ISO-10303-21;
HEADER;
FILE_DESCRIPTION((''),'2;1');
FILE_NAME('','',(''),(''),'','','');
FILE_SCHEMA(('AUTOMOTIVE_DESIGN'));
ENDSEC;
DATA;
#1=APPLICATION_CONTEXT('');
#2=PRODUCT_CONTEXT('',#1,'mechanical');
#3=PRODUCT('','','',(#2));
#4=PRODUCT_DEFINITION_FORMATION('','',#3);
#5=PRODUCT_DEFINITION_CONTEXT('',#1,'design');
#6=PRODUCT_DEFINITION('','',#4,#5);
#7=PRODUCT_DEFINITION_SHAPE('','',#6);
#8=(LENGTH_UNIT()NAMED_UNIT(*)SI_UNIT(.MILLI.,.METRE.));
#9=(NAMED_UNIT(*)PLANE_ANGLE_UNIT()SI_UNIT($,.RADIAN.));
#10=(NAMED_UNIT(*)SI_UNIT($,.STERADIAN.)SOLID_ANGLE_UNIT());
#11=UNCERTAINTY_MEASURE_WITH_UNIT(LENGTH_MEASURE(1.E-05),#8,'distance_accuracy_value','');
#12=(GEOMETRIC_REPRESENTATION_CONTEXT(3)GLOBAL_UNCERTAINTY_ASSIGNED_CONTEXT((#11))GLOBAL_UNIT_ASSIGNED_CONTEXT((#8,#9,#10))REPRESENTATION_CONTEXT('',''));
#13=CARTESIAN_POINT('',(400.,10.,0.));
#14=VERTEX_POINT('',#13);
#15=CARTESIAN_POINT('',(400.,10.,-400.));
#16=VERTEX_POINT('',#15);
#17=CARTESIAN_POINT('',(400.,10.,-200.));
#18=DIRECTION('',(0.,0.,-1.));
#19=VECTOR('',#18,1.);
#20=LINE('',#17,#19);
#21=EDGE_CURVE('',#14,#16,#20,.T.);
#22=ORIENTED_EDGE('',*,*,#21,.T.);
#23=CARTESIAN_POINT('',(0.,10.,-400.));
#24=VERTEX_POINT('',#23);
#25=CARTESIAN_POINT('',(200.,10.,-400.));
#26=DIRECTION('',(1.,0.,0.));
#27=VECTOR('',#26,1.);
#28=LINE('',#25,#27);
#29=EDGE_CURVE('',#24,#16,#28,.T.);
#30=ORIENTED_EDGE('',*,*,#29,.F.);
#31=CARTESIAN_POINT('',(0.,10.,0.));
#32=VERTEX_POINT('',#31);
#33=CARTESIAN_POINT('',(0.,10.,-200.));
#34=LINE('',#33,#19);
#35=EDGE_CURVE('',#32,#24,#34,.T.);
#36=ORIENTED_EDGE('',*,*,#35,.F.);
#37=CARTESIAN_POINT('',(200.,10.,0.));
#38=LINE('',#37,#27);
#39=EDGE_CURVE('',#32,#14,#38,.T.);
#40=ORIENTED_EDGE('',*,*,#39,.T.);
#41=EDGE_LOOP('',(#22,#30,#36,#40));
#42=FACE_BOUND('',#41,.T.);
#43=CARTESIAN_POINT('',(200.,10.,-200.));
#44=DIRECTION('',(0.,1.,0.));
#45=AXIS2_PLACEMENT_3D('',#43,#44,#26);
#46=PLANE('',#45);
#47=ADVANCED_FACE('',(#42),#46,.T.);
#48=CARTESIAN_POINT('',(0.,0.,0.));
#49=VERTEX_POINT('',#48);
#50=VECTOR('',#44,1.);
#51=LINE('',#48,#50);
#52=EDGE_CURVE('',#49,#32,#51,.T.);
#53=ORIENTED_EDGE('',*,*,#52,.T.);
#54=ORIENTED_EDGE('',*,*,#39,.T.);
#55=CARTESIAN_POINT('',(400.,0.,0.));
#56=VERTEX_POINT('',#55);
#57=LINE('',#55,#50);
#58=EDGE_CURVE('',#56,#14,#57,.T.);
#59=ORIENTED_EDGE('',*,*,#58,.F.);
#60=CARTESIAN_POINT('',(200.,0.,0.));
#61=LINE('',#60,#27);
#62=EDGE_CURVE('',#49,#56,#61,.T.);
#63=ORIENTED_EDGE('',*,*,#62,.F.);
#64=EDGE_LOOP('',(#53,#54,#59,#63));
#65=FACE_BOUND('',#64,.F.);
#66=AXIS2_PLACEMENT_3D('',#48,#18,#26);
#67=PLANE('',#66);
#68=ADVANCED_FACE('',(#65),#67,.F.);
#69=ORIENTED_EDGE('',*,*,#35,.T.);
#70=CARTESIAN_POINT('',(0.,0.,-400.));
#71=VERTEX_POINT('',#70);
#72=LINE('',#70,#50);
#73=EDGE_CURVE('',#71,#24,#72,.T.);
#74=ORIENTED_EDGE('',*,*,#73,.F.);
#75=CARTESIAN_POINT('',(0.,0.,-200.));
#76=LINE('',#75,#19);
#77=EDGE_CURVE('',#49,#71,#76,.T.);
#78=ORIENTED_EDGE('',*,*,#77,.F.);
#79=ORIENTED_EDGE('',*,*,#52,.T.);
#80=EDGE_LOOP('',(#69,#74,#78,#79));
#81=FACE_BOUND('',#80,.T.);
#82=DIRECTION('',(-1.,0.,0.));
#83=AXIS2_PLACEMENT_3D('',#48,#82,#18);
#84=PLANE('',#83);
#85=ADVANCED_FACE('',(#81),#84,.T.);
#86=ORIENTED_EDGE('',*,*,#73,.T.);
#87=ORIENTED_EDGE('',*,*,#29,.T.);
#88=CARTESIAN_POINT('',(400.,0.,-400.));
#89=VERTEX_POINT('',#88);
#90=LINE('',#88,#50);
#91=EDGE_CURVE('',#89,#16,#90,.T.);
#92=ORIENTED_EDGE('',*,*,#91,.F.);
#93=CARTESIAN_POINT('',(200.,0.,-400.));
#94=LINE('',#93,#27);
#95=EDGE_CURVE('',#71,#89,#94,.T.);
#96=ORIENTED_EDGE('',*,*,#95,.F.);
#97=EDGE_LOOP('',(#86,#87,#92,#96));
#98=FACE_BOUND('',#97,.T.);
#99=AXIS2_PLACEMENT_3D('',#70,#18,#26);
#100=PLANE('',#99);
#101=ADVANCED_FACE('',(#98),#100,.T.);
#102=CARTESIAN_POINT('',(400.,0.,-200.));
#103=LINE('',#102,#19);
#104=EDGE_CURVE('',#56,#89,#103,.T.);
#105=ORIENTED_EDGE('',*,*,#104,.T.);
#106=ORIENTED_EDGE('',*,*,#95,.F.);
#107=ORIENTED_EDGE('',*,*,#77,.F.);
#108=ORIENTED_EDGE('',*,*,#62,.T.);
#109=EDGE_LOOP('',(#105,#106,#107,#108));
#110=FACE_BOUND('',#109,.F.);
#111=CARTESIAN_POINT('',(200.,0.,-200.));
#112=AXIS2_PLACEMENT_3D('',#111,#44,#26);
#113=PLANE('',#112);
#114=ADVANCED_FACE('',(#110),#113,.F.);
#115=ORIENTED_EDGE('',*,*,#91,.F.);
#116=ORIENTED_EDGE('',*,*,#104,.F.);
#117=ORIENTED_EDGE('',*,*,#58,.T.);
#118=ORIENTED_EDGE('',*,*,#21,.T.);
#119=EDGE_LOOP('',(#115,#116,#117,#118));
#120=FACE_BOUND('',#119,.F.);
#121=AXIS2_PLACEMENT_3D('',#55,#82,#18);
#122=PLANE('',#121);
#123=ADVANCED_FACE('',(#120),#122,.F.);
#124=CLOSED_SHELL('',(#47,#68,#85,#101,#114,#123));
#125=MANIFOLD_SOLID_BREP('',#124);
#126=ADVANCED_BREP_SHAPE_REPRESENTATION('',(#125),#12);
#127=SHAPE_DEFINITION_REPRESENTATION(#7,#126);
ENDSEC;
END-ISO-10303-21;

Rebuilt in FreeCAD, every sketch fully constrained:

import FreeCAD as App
import Part
import Sketcher

V = App.Vector


def add_polygon(sketch, points):
    """Adds a closed chain of lines whose ends are joined by coincident constraints."""
    first, n = sketch.GeometryCount, len(points)
    for a, b in zip(points, points[1:] + points[:1]):
        sketch.addGeometry(Part.LineSegment(App.Vector(*a, 0), App.Vector(*b, 0)), False)
    for i in range(n):
        sketch.addConstraint(Sketcher.Constraint("Coincident", first + i, 2, first + (i + 1) % n, 1))

doc = App.newDocument("Part")
body = doc.addObject("PartDesign::Body", "Body")

sketch1 = body.newObject("Sketcher::SketchObject", "Sketch")
sketch1.AttachmentSupport = (doc.getObject("XZ_Plane"), [""])
sketch1.MapMode = "FlatFace"
add_polygon(sketch1, [(0, -400), (0, 0), (400, 0), (400, -400)])
sketch1.addConstraint(Sketcher.Constraint("Vertical", 0))
sketch1.addConstraint(Sketcher.Constraint("Horizontal", 1))
sketch1.addConstraint(Sketcher.Constraint("Vertical", 2))
sketch1.addConstraint(Sketcher.Constraint("Horizontal", 3))
sketch1.addConstraint(Sketcher.Constraint("Coincident", 0, 2, -1, 1))
sketch1.addConstraint(Sketcher.Constraint("Equal", 3, 0))
sketch1.addConstraint(Sketcher.Constraint("DistanceX", 1, 1, 1, 2, 400.0))
pad1 = body.newObject("PartDesign::Pad", "Pad")
pad1.Profile = sketch1
pad1.Length = 10
pad1.Reversed = True

doc.recompute()
